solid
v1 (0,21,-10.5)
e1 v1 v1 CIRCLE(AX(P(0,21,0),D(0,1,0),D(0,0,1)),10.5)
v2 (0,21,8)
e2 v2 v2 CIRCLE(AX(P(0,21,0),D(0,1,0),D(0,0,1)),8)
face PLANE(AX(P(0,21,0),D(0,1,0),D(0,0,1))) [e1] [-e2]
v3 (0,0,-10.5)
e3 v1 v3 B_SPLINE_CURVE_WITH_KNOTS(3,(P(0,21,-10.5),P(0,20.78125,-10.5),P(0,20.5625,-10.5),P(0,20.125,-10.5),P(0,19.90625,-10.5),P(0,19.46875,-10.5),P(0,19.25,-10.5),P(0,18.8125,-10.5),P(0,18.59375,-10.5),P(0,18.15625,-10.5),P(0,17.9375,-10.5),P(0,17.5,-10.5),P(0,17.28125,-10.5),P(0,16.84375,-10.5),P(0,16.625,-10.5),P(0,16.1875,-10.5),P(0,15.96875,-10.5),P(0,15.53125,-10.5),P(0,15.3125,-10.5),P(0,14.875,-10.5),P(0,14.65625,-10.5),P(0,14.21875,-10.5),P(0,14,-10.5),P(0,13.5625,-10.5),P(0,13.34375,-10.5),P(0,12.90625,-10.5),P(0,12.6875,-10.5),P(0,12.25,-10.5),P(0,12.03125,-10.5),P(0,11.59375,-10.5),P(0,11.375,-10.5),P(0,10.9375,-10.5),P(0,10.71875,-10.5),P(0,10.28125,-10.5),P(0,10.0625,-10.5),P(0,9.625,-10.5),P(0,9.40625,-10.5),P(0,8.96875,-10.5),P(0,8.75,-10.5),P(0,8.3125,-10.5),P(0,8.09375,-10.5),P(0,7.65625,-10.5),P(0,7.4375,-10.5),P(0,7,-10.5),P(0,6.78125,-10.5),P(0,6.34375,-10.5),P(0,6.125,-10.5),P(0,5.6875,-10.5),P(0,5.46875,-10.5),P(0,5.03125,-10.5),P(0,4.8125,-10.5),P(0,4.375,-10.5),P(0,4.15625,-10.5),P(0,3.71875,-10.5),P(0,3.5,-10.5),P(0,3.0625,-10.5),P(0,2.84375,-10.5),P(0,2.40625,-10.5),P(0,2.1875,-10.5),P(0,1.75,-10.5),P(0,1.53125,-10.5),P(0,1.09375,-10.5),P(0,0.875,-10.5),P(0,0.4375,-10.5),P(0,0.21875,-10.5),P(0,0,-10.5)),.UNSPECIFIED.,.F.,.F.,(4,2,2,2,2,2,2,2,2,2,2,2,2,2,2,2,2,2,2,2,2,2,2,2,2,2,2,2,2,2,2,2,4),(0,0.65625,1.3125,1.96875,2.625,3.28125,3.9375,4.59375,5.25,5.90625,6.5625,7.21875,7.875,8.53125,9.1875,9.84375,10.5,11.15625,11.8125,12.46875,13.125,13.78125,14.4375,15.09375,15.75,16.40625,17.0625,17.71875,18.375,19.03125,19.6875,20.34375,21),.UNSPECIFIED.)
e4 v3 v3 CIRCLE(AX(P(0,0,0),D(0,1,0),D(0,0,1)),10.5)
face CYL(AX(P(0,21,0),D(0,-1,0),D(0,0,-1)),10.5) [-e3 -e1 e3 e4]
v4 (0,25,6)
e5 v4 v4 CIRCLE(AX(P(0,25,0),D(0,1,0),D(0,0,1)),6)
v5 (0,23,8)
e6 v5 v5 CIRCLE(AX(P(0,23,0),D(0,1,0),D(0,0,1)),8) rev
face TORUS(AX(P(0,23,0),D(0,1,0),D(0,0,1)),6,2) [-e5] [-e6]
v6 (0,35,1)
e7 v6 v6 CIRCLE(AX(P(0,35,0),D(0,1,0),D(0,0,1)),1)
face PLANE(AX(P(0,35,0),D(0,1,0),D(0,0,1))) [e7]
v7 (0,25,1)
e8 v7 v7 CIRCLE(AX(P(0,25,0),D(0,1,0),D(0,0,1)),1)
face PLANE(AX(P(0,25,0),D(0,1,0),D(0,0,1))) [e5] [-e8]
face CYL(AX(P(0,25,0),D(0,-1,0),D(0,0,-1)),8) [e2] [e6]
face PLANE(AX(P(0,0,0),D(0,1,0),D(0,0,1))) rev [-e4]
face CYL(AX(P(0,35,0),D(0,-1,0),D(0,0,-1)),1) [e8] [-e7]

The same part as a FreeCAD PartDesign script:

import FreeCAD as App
import Part
import Sketcher
from FreeCAD import Vector


def edges_at(feature, points):
    """Names of the edges that pass closest to the given points."""
    edges = feature.Shape.Edges
    near = lambda p: min(range(len(edges)), key=lambda i: edges[i].distToShape(Part.Vertex(*p))[0])
    return sorted({f"Edge{near(p) + 1}" for p in points})

doc = App.newDocument("Part")
params = doc.addObject("Spreadsheet::Sheet", "Params")
for row, (alias, value) in enumerate([
    ("sketch1_diameter", "21 mm"),
    ("pad1_length", "21 mm"),
    ("sketch2_diameter", "16 mm"),
    ("pad2_length", "4 mm"),
    ("fillet_radius", "2 mm"),
    ("sketch3_diameter", "2 mm"),
    ("pad3_length", "10 mm"),
], start=1):
    params.set(f"A{row}", alias)
    params.set(f"B{row}", "=" + value)
    params.setAlias(f"B{row}", alias)

body = doc.addObject("PartDesign::Body", "Body")

sketch1 = body.newObject("Sketcher::SketchObject", "Sketch")
sketch1.AttachmentSupport = (doc.getObject("XZ_Plane"), [""])
sketch1.MapMode = "FlatFace"
sketch1.addGeometry(Part.Circle(Vector(0, 0, 0), Vector(0, 0, 1), 10.5), False)
sketch1.addConstraint([
    Sketcher.Constraint("Coincident", 0, 3, -1, 1),
    Sketcher.Constraint("Diameter", 0, 21.0),
])
sketch1.setExpression("Constraints[1]", "Params.sketch1_diameter")
pad1 = body.newObject("PartDesign::Pad", "Pad")
pad1.Profile = sketch1
pad1.setExpression("Length", "Params.pad1_length")
pad1.Reversed = True

sketch2 = body.newObject("Sketcher::SketchObject", "Sketch001")
sketch2.AttachmentSupport = (doc.getObject("XZ_Plane"), [""])
sketch2.MapMode = "FlatFace"
sketch2.AttachmentOffset = App.Placement(Vector(0, 0, -21), App.Rotation())
sketch2.addGeometry(Part.Circle(Vector(0, 0, 0), Vector(0, 0, 1), 8), False)
sketch2.addConstraint([
    Sketcher.Constraint("Coincident", 0, 3, -1, 1),
    Sketcher.Constraint("Diameter", 0, 16.0),
])
sketch2.setExpression("Constraints[1]", "Params.sketch2_diameter")
pad2 = body.newObject("PartDesign::Pad", "Pad001")
pad2.Profile = sketch2
pad2.setExpression("Length", "Params.pad2_length")
pad2.Reversed = True
doc.recompute()

fillet = body.newObject("PartDesign::Fillet", "Fillet")
fillet.Base = (pad2, edges_at(pad2, [(0, 25, -8)]))
fillet.setExpression("Radius", "Params.fillet_radius")

sketch3 = body.newObject("Sketcher::SketchObject", "Sketch002")
sketch3.AttachmentSupport = (doc.getObject("XZ_Plane"), [""])
sketch3.MapMode = "FlatFace"
sketch3.AttachmentOffset = App.Placement(Vector(0, 0, -25), App.Rotation())
sketch3.addGeometry(Part.Circle(Vector(0, 0, 0), Vector(0, 0, 1), 1), False)
sketch3.addConstraint([
    Sketcher.Constraint("Coincident", 0, 3, -1, 1),
    Sketcher.Constraint("Diameter", 0, 2.0),
])
sketch3.setExpression("Constraints[1]", "Params.sketch3_diameter")
pad3 = body.newObject("PartDesign::Pad", "Pad002")
pad3.Profile = sketch3
pad3.setExpression("Length", "Params.pad3_length")
pad3.Reversed = True

doc.recompute()
